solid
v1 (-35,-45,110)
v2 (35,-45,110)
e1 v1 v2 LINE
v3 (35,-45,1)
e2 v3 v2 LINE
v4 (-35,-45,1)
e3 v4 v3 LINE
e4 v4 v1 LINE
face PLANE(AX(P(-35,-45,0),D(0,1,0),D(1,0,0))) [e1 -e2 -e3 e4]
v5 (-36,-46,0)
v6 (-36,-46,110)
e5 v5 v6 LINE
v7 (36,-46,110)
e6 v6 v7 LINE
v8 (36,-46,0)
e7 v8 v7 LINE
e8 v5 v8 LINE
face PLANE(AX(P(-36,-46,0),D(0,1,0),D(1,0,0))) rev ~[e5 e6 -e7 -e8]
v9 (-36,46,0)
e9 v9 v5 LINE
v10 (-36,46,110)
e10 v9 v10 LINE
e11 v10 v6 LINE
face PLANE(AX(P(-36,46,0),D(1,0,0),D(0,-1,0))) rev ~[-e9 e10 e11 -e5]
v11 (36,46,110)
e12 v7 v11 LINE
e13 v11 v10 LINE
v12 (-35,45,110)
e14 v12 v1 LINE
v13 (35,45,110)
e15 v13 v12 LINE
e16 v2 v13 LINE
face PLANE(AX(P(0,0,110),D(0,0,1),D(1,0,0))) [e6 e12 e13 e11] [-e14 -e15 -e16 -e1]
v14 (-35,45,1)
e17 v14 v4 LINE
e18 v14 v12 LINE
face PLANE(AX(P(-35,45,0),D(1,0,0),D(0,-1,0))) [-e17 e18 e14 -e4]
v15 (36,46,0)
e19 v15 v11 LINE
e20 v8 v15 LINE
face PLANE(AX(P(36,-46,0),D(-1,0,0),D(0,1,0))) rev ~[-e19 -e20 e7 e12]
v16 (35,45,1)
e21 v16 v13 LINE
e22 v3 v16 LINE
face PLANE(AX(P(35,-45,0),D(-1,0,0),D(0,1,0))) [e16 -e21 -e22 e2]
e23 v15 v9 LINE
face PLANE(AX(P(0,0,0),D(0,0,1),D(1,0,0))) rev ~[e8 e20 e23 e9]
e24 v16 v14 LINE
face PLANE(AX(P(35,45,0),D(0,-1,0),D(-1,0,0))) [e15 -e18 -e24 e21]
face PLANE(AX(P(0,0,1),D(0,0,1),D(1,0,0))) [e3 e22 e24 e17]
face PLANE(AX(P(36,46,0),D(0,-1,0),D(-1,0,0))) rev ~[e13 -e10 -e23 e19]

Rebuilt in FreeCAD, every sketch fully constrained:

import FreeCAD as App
import Part
import Sketcher
Q = App.Units.Quantity

doc = App.newDocument("Part")
body = doc.addObject("PartDesign::Body", "Body")

sketch1 = body.newObject("Sketcher::SketchObject", "Sketch")
sketch1.AttachmentSupport = (doc.getObject("XY_Plane"), [""])
sketch1.MapMode = "FlatFace"
sketch1.addGeometry([
    Part.LineSegment(App.Vector(35, -45, 0), App.Vector(35, 45, 0)),
    Part.LineSegment(App.Vector(35, 45, 0), App.Vector(-35, 45, 0)),
    Part.LineSegment(App.Vector(-35, 45, 0), App.Vector(-35, -45, 0)),
    Part.LineSegment(App.Vector(-35, -45, 0), App.Vector(35, -45, 0)),
], False)
sketch1.addConstraint([
    Sketcher.Constraint("Coincident", 0, 2, 1, 1),
    Sketcher.Constraint("Coincident", 1, 2, 2, 1),
    Sketcher.Constraint("Coincident", 2, 2, 3, 1),
    Sketcher.Constraint("Coincident", 3, 2, 0, 1),
    Sketcher.Constraint("Vertical", 0),
    Sketcher.Constraint("Horizontal", 1),
    Sketcher.Constraint("Vertical", 2),
    Sketcher.Constraint("Horizontal", 3),
    Sketcher.Constraint("Symmetric", 0, 2, 2, 2, -1, 1),
    Sketcher.Constraint("DistanceX", 1, 2, 1, 1, Q("70 mm")),
    Sketcher.Constraint("DistanceY", 0, 1, 0, 2, Q("90 mm")),
])
pad1 = body.newObject("PartDesign::Pad", "Pad")
pad1.Profile = sketch1
pad1.Length = 1

sketch2 = body.newObject("Sketcher::SketchObject", "Sketch001")
sketch2.AttachmentSupport = (doc.getObject("XY_Plane"), [""])
sketch2.MapMode = "FlatFace"
sketch2.addGeometry([
    Part.LineSegment(App.Vector(36, -46, 0), App.Vector(36, 46, 0)),
    Part.LineSegment(App.Vector(36, 46, 0), App.Vector(-36, 46, 0)),
    Part.LineSegment(App.Vector(-36, 46, 0), App.Vector(-36, -46, 0)),
    Part.LineSegment(App.Vector(-36, -46, 0), App.Vector(36, -46, 0)),
    Part.LineSegment(App.Vector(-35, 45, 0), App.Vector(35, 45, 0)),
    Part.LineSegment(App.Vector(35, 45, 0), App.Vector(35, -45, 0)),
    Part.LineSegment(App.Vector(35, -45, 0), App.Vector(-35, -45, 0)),
    Part.LineSegment(App.Vector(-35, -45, 0), App.Vector(-35, 45, 0)),
], False)
sketch2.addConstraint([
    Sketcher.Constraint("Coincident", 0, 2, 1, 1),
    Sketcher.Constraint("Coincident", 1, 2, 2, 1),
    Sketcher.Constraint("Coincident", 2, 2, 3, 1),
    Sketcher.Constraint("Coincident", 3, 2, 0, 1),
    Sketcher.Constraint("Coincident", 4, 2, 5, 1),
    Sketcher.Constraint("Coincident", 5, 2, 6, 1),
    Sketcher.Constraint("Coincident", 6, 2, 7, 1),
    Sketcher.Constraint("Coincident", 7, 2, 4, 1),
    Sketcher.Constraint("Vertical", 0),
    Sketcher.Constraint("Horizontal", 1),
    Sketcher.Constraint("Vertical", 2),
    Sketcher.Constraint("Horizontal", 3),
    Sketcher.Constraint("Horizontal", 4),
    Sketcher.Constraint("Vertical", 5),
    Sketcher.Constraint("Horizontal", 6),
    Sketcher.Constraint("Vertical", 7),
    Sketcher.Constraint("Symmetric", 0, 2, 2, 2, -1, 1),
    Sketcher.Constraint("Symmetric", 4, 2, 6, 2, -1, 1),
    Sketcher.Constraint("DistanceX", 1, 2, 1, 1, Q("72 mm")),
    Sketcher.Constraint("DistanceX", 4, 1, 4, 2, Q("70 mm")),
    Sketcher.Constraint("DistanceY", 0, 1, 0, 2, Q("92 mm")),
    Sketcher.Constraint("DistanceY", 5, 2, 5, 1, Q("90 mm")),
])
pad2 = body.newObject("PartDesign::Pad", "Pad001")
pad2.Profile = sketch2
pad2.Length = 110

doc.recompute()
